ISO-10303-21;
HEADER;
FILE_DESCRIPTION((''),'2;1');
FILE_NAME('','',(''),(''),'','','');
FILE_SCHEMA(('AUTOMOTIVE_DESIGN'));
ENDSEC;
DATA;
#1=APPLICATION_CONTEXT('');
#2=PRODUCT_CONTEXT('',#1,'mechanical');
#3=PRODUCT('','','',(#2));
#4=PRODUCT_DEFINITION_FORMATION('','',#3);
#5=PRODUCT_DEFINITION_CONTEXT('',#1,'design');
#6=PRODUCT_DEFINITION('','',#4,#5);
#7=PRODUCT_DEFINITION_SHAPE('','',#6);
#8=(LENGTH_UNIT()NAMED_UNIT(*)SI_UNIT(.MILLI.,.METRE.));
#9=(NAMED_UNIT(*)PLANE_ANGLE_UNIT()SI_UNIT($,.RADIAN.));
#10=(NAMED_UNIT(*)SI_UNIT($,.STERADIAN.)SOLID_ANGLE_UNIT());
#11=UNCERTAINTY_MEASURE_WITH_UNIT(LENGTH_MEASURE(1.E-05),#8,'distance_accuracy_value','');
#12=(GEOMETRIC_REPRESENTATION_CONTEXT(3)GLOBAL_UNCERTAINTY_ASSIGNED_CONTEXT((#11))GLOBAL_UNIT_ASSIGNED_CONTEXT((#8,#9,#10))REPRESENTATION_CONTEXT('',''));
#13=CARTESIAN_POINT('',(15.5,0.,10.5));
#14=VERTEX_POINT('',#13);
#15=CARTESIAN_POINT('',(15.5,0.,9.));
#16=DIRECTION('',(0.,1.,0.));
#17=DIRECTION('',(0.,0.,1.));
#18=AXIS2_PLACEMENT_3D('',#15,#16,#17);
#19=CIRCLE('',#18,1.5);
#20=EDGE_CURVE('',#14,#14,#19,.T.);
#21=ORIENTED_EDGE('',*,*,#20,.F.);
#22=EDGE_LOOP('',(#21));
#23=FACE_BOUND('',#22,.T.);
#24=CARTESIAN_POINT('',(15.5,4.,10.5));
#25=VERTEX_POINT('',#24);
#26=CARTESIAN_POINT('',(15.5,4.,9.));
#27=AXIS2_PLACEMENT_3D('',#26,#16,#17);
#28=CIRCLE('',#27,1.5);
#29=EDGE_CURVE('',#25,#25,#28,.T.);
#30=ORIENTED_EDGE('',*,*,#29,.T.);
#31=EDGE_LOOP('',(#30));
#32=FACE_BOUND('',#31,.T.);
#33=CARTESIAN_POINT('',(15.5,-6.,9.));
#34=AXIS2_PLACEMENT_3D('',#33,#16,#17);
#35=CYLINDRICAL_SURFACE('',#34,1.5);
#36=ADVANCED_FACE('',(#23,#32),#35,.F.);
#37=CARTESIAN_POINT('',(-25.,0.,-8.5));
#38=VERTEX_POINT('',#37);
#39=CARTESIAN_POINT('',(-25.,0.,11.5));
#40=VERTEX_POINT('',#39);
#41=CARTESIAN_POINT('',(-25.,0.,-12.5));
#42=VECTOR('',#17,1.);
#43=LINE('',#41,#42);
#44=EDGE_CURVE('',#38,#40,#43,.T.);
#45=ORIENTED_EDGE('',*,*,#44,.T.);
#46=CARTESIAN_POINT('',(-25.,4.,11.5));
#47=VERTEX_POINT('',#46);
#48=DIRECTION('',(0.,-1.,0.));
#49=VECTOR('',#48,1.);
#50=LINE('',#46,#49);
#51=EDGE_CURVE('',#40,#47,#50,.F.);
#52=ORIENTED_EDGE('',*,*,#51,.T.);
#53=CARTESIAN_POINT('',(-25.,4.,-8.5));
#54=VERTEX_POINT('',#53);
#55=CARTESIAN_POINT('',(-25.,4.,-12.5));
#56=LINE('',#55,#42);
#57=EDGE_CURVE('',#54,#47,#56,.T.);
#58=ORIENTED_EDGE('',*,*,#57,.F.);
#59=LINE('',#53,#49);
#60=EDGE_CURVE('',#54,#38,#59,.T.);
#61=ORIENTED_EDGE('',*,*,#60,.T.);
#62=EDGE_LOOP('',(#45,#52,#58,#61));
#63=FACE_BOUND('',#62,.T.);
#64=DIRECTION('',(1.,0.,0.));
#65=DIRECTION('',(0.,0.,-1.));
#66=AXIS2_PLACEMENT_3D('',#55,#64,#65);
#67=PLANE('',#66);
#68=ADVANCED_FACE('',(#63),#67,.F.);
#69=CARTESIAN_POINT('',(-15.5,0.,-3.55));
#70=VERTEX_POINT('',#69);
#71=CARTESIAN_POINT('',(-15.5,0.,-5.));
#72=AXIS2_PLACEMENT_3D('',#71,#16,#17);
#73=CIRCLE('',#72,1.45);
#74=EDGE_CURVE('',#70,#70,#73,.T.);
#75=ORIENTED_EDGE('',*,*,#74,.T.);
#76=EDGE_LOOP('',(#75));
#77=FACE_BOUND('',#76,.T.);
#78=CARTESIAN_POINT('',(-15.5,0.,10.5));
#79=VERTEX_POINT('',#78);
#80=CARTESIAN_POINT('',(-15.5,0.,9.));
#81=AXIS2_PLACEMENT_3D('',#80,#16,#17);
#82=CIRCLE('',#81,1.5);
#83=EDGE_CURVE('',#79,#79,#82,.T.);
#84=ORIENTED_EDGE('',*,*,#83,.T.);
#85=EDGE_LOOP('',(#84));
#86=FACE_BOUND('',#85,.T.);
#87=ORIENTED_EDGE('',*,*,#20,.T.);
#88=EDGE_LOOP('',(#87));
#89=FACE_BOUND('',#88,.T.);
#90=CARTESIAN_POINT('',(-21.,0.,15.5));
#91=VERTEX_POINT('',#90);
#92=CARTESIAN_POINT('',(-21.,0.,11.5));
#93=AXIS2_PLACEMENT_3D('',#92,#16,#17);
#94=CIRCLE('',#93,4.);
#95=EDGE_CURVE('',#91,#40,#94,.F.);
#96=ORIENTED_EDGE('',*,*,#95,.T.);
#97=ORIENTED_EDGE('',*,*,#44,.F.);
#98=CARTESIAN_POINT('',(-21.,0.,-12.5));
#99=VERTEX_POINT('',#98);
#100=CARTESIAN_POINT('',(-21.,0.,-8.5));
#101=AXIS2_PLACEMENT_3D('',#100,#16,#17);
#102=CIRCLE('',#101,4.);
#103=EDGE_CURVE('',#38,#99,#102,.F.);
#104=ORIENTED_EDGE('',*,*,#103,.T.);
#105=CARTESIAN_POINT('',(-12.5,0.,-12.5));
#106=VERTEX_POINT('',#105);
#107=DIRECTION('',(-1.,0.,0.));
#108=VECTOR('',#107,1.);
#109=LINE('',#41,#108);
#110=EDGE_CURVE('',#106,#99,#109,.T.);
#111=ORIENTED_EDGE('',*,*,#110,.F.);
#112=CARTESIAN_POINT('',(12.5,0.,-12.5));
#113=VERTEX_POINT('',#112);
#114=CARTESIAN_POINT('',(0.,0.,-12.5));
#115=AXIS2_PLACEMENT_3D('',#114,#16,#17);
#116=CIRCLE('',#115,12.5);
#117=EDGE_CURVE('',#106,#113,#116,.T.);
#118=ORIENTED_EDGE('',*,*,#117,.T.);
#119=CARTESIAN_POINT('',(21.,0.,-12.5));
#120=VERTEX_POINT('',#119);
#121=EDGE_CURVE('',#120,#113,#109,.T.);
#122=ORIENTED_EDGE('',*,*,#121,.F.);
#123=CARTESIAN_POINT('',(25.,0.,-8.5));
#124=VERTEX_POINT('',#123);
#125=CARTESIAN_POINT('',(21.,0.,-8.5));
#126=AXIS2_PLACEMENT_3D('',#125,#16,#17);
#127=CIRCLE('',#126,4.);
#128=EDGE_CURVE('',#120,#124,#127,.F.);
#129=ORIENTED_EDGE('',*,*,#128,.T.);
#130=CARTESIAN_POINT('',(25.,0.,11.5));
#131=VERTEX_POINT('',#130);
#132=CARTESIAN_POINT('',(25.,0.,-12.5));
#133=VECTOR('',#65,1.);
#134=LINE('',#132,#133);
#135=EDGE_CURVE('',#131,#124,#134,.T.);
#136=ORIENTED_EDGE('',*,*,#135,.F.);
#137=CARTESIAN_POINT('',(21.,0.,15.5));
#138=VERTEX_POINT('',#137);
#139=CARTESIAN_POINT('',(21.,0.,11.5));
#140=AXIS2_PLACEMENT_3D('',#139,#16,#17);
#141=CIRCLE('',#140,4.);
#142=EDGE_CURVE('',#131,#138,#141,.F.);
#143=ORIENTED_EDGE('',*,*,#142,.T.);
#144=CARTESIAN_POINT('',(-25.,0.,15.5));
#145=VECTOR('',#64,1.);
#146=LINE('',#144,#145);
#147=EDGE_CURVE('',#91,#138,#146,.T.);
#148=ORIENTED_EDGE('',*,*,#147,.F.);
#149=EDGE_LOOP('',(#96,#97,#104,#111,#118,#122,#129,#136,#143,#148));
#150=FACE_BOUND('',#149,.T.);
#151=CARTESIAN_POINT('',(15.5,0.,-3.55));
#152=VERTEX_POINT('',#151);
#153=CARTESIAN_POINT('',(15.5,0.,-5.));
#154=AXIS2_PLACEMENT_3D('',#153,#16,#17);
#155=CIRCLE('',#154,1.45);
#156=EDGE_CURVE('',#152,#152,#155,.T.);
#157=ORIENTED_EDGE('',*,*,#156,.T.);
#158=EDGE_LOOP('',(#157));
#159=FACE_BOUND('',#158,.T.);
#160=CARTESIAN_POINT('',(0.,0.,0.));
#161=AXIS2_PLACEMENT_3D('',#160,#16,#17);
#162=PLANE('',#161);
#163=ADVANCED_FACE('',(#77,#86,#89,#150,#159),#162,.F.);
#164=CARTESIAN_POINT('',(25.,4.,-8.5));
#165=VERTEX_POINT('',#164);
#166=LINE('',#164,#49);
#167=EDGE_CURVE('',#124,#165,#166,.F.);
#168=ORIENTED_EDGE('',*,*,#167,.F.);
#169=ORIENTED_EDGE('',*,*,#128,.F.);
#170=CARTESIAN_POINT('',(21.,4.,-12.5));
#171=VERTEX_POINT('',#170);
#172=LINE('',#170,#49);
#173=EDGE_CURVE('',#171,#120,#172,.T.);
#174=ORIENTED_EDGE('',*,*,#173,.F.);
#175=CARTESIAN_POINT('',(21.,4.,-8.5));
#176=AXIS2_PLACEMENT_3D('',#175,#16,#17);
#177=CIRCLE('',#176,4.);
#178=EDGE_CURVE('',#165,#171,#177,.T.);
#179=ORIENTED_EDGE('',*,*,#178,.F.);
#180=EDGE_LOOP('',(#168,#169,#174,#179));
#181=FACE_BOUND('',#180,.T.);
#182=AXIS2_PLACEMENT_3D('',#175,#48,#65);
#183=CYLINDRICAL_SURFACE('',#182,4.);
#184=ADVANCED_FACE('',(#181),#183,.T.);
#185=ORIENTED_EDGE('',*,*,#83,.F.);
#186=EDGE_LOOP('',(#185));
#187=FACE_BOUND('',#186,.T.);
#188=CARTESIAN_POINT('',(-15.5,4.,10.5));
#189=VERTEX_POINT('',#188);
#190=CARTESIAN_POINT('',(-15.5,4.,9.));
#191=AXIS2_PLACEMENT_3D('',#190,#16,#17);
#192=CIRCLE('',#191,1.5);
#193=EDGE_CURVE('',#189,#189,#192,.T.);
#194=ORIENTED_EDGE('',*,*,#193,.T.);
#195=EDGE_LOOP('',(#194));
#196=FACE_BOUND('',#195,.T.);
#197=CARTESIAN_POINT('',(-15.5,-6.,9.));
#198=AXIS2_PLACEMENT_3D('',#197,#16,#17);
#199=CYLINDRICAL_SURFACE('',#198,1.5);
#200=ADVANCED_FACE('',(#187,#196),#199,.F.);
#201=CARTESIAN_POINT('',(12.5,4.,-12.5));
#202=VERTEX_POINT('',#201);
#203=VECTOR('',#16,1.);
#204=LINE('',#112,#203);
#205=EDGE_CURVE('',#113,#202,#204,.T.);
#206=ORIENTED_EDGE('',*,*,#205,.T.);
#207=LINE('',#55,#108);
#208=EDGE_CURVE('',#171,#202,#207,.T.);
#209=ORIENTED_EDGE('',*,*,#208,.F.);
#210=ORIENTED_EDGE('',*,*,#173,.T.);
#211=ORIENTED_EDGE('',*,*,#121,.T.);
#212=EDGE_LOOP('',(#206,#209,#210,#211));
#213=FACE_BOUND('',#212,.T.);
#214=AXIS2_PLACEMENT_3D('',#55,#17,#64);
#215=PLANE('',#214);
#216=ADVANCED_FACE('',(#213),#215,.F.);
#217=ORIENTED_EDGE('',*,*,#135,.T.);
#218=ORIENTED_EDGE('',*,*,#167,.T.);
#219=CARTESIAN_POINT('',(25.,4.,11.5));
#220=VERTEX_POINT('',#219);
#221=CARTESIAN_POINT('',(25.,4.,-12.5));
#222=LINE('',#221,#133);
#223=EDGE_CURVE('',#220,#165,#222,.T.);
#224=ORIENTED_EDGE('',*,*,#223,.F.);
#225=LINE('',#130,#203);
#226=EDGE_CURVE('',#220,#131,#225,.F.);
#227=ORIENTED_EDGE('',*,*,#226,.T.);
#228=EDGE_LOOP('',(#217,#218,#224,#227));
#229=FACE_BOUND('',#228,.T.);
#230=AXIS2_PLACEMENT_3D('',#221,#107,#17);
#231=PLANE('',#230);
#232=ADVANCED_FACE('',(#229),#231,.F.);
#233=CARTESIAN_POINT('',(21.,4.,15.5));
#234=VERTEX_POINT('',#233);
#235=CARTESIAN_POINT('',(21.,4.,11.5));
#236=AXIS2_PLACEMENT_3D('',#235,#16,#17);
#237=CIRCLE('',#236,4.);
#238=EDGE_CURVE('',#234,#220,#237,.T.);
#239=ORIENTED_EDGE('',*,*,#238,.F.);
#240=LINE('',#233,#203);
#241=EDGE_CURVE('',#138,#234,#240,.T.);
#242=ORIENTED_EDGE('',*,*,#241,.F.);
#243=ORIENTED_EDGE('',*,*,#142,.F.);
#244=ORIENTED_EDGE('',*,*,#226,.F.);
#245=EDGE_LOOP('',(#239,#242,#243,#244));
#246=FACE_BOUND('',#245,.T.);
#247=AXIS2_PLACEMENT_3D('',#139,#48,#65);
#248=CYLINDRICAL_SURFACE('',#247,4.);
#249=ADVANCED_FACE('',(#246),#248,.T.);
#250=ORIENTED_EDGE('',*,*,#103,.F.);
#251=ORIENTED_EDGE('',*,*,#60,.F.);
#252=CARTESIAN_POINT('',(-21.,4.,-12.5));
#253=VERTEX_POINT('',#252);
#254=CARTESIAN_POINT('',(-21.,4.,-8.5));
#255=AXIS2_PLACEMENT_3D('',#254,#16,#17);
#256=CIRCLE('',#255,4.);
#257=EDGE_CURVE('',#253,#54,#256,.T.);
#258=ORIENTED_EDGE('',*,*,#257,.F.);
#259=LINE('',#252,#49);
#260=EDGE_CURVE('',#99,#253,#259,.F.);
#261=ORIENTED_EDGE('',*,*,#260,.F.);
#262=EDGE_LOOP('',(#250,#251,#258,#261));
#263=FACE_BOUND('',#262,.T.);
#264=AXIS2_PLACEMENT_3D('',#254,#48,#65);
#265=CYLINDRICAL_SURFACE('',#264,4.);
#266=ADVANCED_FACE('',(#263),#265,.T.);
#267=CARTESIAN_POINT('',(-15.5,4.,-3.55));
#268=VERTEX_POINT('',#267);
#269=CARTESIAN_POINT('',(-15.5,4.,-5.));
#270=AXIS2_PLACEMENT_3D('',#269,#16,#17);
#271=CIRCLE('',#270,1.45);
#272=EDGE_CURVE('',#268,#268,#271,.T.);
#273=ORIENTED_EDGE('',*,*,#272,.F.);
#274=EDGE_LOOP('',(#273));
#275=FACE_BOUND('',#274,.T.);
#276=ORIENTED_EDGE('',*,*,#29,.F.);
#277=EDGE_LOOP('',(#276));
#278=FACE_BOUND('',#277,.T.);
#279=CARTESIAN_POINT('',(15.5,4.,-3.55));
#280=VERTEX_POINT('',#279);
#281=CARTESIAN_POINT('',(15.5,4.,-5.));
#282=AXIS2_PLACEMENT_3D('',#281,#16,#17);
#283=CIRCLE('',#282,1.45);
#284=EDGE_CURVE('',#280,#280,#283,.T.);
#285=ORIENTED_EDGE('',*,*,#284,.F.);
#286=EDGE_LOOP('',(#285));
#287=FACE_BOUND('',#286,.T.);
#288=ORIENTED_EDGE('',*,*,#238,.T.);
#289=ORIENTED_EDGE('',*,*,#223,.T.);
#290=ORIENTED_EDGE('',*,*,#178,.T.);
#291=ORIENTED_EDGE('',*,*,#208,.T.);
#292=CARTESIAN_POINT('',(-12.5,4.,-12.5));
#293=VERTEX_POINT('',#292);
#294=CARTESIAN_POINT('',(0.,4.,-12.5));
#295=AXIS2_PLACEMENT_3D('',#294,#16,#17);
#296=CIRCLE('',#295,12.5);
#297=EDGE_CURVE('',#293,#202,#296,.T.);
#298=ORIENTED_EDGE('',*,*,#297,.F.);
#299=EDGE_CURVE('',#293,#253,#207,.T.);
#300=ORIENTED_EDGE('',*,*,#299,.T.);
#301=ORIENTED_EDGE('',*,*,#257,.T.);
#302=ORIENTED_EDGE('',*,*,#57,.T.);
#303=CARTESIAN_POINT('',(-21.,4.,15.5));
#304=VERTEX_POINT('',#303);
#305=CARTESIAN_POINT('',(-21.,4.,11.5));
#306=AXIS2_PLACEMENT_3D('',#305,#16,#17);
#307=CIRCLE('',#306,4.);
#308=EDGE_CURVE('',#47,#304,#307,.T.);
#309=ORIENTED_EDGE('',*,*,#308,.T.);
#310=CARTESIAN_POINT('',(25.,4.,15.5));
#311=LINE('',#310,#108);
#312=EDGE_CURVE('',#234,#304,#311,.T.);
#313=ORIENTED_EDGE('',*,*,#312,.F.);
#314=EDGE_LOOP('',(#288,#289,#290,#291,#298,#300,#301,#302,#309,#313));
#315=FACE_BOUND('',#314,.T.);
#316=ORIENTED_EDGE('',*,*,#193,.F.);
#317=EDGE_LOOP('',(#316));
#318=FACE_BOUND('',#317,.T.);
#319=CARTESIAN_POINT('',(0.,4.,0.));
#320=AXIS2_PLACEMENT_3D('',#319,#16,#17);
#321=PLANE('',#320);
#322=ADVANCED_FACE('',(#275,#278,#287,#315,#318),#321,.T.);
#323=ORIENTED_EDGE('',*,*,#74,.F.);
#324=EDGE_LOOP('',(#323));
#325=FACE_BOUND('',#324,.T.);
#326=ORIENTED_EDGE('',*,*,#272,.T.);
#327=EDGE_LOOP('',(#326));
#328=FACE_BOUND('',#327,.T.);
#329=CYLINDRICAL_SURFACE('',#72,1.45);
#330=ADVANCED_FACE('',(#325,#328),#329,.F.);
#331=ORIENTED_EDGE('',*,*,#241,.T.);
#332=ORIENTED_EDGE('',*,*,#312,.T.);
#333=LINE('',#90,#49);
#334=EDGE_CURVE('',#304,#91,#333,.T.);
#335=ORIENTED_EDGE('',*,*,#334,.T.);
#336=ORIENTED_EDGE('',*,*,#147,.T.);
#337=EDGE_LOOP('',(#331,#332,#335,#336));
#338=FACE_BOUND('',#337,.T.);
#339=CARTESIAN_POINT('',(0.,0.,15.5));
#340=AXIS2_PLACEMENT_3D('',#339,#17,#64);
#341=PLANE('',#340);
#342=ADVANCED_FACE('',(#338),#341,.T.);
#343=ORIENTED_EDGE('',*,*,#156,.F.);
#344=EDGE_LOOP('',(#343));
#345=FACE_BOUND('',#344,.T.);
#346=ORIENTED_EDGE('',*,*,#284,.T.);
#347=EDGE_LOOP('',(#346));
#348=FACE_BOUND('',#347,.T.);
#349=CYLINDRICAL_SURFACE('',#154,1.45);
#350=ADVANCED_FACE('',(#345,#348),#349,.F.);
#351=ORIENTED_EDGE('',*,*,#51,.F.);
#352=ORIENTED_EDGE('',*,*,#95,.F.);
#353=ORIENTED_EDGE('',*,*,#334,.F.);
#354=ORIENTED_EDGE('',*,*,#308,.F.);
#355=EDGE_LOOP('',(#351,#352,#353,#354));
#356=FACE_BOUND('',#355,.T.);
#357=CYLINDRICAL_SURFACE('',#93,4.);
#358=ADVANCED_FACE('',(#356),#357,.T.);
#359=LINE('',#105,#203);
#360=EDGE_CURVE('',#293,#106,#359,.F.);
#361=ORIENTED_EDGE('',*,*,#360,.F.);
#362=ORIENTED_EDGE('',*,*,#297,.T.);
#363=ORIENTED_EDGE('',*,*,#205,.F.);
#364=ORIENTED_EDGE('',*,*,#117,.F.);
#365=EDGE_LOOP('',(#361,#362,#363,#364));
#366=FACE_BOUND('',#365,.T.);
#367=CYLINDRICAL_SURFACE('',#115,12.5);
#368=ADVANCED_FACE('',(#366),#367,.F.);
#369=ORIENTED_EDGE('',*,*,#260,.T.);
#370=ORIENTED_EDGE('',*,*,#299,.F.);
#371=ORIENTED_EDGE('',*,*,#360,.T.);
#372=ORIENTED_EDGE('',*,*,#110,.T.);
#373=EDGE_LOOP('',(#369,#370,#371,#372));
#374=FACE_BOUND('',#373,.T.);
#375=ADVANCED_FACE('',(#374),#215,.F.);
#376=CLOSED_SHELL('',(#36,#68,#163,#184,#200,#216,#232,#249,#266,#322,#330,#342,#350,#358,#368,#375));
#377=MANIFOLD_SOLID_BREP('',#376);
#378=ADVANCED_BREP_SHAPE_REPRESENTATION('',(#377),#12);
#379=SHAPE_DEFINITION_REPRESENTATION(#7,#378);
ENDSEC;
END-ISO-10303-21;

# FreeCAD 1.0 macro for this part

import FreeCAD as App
import Part
import Sketcher

V = App.Vector
Q = App.Units.Quantity


def edges_at(feature, points):
    """Names of the edges that pass closest to the given points."""
    edges = feature.Shape.Edges
    near = lambda p: min(range(len(edges)), key=lambda i: edges[i].distToShape(Part.Vertex(*p))[0])
    return sorted({f"Edge{near(p) + 1}" for p in points})


def add_polygon(sketch, points):
    """Adds a closed chain of lines whose ends are joined by coincident constraints."""
    first, n = sketch.GeometryCount, len(points)
    for a, b in zip(points, points[1:] + points[:1]):
        sketch.addGeometry(Part.LineSegment(App.Vector(*a, 0), App.Vector(*b, 0)), False)
    for i in range(n):
        sketch.addConstraint(Sketcher.Constraint("Coincident", first + i, 2, first + (i + 1) % n, 1))

doc = App.newDocument("Part")
body = doc.addObject("PartDesign::Body", "Body")

# Sketch on XZ plane
sketch1 = body.newObject("Sketcher::SketchObject", "Sketch")
sketch1.AttachmentSupport = (doc.getObject("XZ_Plane"), [""])
sketch1.MapMode = "FlatFace"
add_polygon(sketch1, [(-25, -12), (-25, 12), (25, 12), (25, -12)])  # lines 0-3
sketch1.addConstraint(Sketcher.Constraint("Vertical", 0))
sketch1.addConstraint(Sketcher.Constraint("Horizontal", 1))
sketch1.addConstraint(Sketcher.Constraint("Vertical", 2))
sketch1.addConstraint(Sketcher.Constraint("Horizontal", 3))
sketch1.addConstraint(Sketcher.Constraint("Symmetric", 0, 2, 2, 2, -1, 1))
sketch1.addConstraint(Sketcher.Constraint("DistanceX", 1, 1, 1, 2, Q("50 mm")))
sketch1.addConstraint(Sketcher.Constraint("DistanceY", 0, 1, 0, 2, Q("25 mm")))
pad1 = body.newObject("PartDesign::Pad", "Pad")
pad1.Profile = sketch1
pad1.Length = 4
pad1.Reversed = True

# Sketch on XZ plane
sketch2 = body.newObject("Sketcher::SketchObject", "Sketch001")
sketch2.AttachmentSupport = (doc.getObject("XZ_Plane"), [""])
sketch2.MapMode = "FlatFace"
sketch2.AttachmentOffset = App.Placement(V(0, 0, -4), App.Rotation())
sketch2.addGeometry(Part.Circle(V(-15.5, -5, 0), V(0, 0, 1), 1.4), False)
sketch2.addGeometry(Part.Circle(V(15.5, -5, 0), V(0, 0, 1), 1.4), False)
sketch2.addConstraint(Sketcher.Constraint("Equal", 0, 1))
sketch2.addConstraint(Sketcher.Constraint("Symmetric", 0, 3, 1, 3, -2))
sketch2.addConstraint(Sketcher.Constraint("Diameter", 0, Q("2.9 mm")))
sketch2.addConstraint(Sketcher.Constraint("DistanceY", 0, 3, -1, 1, Q("5 mm")))
sketch2.addConstraint(Sketcher.Constraint("DistanceX", 0, 3, 1, 3, Q("31 mm")))
pocket1 = body.newObject("PartDesign::Pocket", "Pocket")
pocket1.Profile = sketch2
pocket1.Length = 4
pocket1.Reversed = True

# Sketch on XZ plane
sketch3 = body.newObject("Sketcher::SketchObject", "Sketch002")
sketch3.AttachmentSupport = (doc.getObject("XZ_Plane"), [""])
sketch3.MapMode = "FlatFace"
sketch3.AttachmentOffset = App.Placement(V(0, 0, -4), App.Rotation())
sketch3.addGeometry(Part.Circle(V(0, -12, 0), V(0, 0, 1), 12), False)
sketch3.addConstraint(Sketcher.Constraint("PointOnObject", 0, 3, -2))
sketch3.addConstraint(Sketcher.Constraint("Diameter", 0, Q("25 mm")))
sketch3.addConstraint(Sketcher.Constraint("DistanceY", 0, 3, -1, 1, Q("12.5 mm")))
pocket2 = body.newObject("PartDesign::Pocket", "Pocket001")
pocket2.Profile = sketch3
pocket2.Length = 4
pocket2.Reversed = True

# Sketch on XY plane
sketch4 = body.newObject("Sketcher::SketchObject", "Sketch003")
sketch4.AttachmentSupport = (doc.getObject("XY_Plane"), [""])
sketch4.MapMode = "FlatFace"
sketch4.AttachmentOffset = App.Placement(V(0, 0, 12.5), App.Rotation())
add_polygon(sketch4, [(-25, 4), (-25, 0), (25, 0), (25, 4)])  # lines 0-3
sketch4.addConstraint(Sketcher.Constraint("Vertical", 0))
sketch4.addConstraint(Sketcher.Constraint("Horizontal", 1))
sketch4.addConstraint(Sketcher.Constraint("Vertical", 2))
sketch4.addConstraint(Sketcher.Constraint("Horizontal", 3))
sketch4.addConstraint(Sketcher.Constraint("Symmetric", 0, 2, 1, 2, -1, 1))
sketch4.addConstraint(Sketcher.Constraint("DistanceX", 1, 1, 1, 2, Q("50 mm")))
sketch4.addConstraint(Sketcher.Constraint("DistanceY", 0, 2, 0, 1, Q("4 mm")))
pad2 = body.newObject("PartDesign::Pad", "Pad001")
pad2.Profile = sketch4
pad2.Length = 3
doc.recompute()

fillet = body.newObject("PartDesign::Fillet", "Fillet")
fillet.Base = (pad2, edges_at(pad2, [
    (-25, 2, 15.5),
    (25, 2, 15.5),
    (-25, 2, -12.5),
    (25, 2, -12.5),
]))
fillet.Radius = 4

# Sketch on XZ plane
sketch5 = body.newObject("Sketcher::SketchObject", "Sketch004")
sketch5.AttachmentSupport = (doc.getObject("XZ_Plane"), [""])
sketch5.MapMode = "FlatFace"
sketch5.AttachmentOffset = App.Placement(V(0, 0, -4), App.Rotation())
sketch5.addGeometry(Part.Circle(V(-15.5, 9, 0), V(0, 0, 1), 1.5), False)
sketch5.addGeometry(Part.Circle(V(15.5, 9, 0), V(0, 0, 1), 1.5), False)
sketch5.addConstraint(Sketcher.Constraint("Equal", 0, 1))
sketch5.addConstraint(Sketcher.Constraint("Symmetric", 0, 3, 1, 3, -2))
sketch5.addConstraint(Sketcher.Constraint("Diameter", 0, Q("3 mm")))
sketch5.addConstraint(Sketcher.Constraint("DistanceY", -1, 1, 0, 3, Q("9 mm")))
sketch5.addConstraint(Sketcher.Constraint("DistanceX", 0, 3, 1, 3, Q("31 mm")))
pocket3 = body.newObject("PartDesign::Pocket", "Pocket002")
pocket3.Profile = sketch5
pocket3.Length = 10
pocket3.Reversed = True

doc.recompute()
